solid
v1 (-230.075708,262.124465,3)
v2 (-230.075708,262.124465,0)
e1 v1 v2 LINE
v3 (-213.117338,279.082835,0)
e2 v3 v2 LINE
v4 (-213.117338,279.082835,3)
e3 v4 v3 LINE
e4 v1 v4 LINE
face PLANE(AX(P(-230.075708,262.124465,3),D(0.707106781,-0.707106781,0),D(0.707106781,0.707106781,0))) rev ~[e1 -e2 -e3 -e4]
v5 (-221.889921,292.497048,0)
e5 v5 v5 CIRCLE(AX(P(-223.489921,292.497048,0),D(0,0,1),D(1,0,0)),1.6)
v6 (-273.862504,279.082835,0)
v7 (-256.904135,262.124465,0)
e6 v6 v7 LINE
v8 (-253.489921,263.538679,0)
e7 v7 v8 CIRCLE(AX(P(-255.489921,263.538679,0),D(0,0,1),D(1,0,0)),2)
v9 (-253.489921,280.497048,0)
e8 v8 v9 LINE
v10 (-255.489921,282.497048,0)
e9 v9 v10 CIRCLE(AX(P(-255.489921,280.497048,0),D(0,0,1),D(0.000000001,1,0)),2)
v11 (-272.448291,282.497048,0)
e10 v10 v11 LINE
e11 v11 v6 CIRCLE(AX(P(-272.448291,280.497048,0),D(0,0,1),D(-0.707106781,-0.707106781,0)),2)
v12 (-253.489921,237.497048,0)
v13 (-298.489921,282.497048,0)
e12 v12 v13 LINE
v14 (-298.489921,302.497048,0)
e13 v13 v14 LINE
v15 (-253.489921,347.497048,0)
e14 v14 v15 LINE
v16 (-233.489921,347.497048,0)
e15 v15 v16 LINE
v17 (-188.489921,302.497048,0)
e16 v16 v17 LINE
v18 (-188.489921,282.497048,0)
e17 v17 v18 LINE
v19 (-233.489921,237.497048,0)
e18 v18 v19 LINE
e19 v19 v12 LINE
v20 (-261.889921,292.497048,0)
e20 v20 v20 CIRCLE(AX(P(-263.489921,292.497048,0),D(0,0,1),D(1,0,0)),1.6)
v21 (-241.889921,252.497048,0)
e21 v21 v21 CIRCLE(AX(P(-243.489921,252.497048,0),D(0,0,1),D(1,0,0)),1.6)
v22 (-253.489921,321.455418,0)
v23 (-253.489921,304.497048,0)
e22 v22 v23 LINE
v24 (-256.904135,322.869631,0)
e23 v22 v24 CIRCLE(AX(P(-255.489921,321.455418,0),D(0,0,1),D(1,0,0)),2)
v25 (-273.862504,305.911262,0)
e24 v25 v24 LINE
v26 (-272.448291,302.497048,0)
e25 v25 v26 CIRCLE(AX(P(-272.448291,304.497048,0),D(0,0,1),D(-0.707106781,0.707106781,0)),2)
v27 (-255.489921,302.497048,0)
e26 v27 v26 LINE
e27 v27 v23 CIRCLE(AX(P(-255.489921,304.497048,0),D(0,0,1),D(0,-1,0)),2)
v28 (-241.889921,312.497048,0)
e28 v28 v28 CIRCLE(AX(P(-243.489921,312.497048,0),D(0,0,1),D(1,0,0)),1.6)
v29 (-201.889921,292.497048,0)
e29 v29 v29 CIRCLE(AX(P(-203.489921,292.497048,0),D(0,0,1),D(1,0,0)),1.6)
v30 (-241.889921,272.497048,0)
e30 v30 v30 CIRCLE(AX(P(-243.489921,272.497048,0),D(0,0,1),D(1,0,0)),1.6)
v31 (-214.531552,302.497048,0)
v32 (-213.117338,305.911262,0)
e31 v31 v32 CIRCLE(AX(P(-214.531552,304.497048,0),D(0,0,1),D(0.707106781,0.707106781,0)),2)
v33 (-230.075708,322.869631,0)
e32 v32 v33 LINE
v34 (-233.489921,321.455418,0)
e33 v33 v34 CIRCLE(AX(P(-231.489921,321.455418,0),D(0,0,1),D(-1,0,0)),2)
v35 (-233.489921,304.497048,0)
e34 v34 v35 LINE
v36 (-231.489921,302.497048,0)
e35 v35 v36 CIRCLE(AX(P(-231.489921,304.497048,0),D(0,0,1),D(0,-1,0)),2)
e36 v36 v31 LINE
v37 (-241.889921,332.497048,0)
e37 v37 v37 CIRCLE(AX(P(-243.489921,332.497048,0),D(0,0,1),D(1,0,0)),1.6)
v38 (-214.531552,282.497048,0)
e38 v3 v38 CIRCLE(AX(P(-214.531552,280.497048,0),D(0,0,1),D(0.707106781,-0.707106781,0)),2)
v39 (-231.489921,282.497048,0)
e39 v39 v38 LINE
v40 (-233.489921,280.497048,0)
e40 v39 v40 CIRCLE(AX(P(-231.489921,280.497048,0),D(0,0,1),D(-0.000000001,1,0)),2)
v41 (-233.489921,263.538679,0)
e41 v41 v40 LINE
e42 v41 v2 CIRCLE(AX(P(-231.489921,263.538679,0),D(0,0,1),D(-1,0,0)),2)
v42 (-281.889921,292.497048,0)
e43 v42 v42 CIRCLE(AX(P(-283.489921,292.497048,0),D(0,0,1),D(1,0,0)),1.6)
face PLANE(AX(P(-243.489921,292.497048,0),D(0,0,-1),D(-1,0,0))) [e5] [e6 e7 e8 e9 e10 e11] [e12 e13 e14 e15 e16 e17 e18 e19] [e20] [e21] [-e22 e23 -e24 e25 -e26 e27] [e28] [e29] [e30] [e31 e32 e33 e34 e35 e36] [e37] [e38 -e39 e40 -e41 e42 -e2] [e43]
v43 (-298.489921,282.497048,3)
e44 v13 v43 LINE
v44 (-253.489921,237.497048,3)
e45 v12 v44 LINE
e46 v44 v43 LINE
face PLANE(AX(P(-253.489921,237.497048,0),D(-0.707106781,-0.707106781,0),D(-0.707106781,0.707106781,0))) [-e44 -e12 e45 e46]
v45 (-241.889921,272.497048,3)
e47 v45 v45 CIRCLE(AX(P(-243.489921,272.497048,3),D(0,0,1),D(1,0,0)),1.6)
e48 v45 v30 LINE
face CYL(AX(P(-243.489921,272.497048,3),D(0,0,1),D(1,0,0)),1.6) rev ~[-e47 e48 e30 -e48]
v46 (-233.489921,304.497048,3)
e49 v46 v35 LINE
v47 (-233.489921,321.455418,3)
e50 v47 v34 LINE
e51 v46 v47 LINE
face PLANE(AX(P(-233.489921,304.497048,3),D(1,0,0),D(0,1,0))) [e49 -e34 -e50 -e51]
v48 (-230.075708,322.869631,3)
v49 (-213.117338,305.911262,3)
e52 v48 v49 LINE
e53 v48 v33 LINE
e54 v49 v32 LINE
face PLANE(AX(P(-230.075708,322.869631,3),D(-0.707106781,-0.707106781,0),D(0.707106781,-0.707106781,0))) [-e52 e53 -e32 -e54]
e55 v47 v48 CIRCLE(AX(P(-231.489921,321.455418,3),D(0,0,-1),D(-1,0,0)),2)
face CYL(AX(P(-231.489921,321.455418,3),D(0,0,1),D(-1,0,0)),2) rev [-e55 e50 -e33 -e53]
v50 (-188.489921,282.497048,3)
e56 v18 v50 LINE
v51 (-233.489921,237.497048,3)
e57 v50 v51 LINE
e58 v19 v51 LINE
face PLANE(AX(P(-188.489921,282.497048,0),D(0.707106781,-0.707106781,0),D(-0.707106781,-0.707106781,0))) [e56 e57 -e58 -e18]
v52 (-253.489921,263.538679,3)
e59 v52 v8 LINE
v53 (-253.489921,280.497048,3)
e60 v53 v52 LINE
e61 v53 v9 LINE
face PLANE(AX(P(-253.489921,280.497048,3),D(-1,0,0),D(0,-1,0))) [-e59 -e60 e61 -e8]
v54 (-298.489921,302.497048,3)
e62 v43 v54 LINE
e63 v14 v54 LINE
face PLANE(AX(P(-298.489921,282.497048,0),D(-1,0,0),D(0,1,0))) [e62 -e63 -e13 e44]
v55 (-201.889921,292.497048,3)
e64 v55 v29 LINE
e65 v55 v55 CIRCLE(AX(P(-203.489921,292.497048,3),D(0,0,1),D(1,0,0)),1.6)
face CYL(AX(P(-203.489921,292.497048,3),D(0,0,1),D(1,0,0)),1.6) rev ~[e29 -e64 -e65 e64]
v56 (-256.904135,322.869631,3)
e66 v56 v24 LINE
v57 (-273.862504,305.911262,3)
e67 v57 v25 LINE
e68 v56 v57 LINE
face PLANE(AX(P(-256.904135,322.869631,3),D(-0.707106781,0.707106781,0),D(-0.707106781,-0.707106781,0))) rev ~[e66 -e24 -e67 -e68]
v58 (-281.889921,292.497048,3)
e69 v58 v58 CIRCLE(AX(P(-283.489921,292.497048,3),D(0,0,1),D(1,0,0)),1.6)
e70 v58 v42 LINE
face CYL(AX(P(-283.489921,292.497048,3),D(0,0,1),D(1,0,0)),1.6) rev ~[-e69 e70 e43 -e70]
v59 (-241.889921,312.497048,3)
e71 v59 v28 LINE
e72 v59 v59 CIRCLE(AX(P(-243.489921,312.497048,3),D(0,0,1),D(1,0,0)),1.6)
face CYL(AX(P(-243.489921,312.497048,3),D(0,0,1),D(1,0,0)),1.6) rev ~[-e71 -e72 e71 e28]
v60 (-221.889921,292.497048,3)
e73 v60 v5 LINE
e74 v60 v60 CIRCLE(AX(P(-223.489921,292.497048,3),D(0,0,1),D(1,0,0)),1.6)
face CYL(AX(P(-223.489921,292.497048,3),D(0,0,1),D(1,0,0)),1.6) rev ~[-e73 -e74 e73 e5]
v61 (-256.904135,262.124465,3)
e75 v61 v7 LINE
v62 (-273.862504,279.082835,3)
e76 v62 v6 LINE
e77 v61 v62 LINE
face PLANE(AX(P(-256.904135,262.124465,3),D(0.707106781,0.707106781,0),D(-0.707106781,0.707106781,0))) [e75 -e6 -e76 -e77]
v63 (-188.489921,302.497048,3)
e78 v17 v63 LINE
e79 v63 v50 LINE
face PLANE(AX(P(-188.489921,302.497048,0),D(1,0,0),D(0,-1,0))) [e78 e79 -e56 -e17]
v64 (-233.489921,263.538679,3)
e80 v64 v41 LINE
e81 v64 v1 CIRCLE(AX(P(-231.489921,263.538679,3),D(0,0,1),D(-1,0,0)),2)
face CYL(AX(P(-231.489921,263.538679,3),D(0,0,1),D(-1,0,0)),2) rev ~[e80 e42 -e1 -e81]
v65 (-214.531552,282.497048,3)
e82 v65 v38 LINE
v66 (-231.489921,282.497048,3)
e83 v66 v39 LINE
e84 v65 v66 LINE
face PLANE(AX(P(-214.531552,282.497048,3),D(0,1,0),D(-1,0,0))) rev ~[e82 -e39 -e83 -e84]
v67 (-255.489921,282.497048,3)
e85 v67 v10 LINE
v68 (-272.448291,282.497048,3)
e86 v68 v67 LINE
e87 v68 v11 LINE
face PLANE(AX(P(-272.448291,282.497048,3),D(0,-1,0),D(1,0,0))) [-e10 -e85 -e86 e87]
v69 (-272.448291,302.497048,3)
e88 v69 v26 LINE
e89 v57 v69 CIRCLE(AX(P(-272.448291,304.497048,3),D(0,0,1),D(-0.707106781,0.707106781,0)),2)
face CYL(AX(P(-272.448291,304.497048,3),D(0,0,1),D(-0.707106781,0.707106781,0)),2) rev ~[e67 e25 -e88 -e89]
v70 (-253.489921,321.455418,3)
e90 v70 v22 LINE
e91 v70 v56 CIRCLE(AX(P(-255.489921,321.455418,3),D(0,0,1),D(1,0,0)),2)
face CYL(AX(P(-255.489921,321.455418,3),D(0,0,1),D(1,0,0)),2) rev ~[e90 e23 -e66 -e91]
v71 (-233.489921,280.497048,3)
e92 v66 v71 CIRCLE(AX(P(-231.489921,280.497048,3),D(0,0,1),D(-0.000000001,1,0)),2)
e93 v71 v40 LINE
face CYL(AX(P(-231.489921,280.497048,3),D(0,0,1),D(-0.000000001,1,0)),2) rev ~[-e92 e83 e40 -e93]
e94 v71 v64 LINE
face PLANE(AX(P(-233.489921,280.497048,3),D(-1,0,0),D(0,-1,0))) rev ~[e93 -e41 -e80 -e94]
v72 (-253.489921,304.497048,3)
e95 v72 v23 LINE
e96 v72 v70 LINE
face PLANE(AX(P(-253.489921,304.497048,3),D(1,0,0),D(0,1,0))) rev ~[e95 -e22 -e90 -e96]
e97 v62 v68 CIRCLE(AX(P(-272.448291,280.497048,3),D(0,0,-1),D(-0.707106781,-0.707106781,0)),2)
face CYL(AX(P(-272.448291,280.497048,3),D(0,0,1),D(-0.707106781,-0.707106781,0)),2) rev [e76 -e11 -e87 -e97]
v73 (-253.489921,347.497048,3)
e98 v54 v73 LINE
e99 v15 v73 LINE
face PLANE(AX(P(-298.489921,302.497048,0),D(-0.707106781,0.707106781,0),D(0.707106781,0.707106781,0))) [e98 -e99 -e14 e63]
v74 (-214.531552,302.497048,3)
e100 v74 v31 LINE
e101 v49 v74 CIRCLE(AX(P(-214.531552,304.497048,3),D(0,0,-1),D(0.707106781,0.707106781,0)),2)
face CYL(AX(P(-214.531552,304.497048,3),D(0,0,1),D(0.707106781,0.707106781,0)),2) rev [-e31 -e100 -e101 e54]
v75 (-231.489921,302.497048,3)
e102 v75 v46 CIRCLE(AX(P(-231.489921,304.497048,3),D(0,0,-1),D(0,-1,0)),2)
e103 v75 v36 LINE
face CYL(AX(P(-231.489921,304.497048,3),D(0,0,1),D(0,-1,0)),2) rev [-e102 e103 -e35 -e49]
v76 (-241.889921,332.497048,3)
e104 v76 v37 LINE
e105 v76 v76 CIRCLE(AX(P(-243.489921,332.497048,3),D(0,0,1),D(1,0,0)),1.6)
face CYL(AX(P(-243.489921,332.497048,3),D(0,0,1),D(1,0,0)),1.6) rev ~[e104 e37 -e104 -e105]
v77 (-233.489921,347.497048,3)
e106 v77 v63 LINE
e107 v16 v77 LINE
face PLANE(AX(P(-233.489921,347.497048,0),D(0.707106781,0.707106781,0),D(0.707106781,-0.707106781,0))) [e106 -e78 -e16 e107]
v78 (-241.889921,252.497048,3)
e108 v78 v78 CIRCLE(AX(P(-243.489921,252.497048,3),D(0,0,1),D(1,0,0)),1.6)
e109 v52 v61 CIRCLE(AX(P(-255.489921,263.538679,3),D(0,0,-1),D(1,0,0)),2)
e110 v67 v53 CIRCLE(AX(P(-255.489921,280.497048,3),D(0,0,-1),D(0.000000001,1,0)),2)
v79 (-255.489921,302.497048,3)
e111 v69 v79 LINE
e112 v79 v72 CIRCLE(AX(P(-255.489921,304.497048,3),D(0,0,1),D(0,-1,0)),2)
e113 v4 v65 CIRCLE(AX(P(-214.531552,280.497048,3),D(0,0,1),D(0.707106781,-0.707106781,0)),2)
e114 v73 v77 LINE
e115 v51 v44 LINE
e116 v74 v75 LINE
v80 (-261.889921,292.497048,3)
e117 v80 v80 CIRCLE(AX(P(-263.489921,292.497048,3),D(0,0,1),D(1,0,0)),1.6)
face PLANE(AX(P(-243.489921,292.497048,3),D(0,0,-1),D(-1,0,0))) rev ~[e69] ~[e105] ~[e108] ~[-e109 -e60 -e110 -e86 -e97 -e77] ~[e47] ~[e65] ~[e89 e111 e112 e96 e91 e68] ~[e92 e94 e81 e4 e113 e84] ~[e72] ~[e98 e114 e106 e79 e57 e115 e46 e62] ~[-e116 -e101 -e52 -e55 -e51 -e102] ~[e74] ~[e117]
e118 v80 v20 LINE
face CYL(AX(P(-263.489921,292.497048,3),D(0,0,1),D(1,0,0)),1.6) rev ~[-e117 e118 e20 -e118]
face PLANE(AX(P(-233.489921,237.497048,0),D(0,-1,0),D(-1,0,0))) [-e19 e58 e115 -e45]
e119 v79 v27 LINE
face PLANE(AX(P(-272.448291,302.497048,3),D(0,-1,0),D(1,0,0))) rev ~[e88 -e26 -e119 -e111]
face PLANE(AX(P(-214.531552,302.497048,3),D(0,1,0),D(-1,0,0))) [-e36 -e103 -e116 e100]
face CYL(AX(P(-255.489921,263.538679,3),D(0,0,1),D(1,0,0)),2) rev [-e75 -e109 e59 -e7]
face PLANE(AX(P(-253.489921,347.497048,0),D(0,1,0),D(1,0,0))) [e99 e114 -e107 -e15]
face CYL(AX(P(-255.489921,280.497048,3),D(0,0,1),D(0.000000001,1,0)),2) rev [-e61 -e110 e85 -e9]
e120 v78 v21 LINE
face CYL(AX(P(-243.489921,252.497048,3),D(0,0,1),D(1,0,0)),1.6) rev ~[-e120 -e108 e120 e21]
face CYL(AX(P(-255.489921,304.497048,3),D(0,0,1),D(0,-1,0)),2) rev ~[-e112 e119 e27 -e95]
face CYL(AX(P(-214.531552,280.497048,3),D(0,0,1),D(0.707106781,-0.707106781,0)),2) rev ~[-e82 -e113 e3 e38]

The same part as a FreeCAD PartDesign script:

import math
import FreeCAD as App
import Part
import Sketcher
from FreeCAD import Vector


def add_polygon(sketch, points):
    """Adds a closed chain of lines whose ends are joined by coincident constraints."""
    first, n = sketch.GeometryCount, len(points)
    for a, b in zip(points, points[1:] + points[:1]):
        sketch.addGeometry(Part.LineSegment(App.Vector(*a, 0), App.Vector(*b, 0)), False)
    for i in range(n):
        sketch.addConstraint(Sketcher.Constraint("Coincident", first + i, 2, first + (i + 1) % n, 1))

doc = App.newDocument("Part")
params = doc.addObject("Spreadsheet::Sheet", "Params")
for row, (alias, value) in enumerate([
    ("sketch1_width", "20 mm"),
    ("pad1_length", "3 mm"),
    ("sketch2_diameter", "3.2 mm"),
    ("pocket1_length", "3 mm"),
    ("sketch3_radius", "2 mm"),
    ("pocket2_length", "10 mm"),
], start=1):
    params.set(f"A{row}", alias)
    params.set(f"B{row}", "=" + value)
    params.setAlias(f"B{row}", alias)

body = doc.addObject("PartDesign::Body", "Body")

# Sketch on XY plane
sketch1 = body.newObject("Sketcher::SketchObject", "Sketch")
sketch1.AttachmentSupport = (doc.getObject("XY_Plane"), [""])
sketch1.MapMode = "FlatFace"
add_polygon(sketch1, [(-233, 347), (-253, 347), (-298, 302), (-298, 282), (-253, 237), (-233, 237), (-188, 282), (-188, 302)])  # lines 0-7
sketch1.addConstraint(Sketcher.Constraint("Horizontal", 0))
sketch1.addConstraint(Sketcher.Constraint("Vertical", 2))
sketch1.addConstraint(Sketcher.Constraint("Horizontal", 4))
sketch1.addConstraint(Sketcher.Constraint("Vertical", 6))
sketch1.addConstraint(Sketcher.Constraint("Perpendicular", 1, 3))
sketch1.addConstraint(Sketcher.Constraint("Perpendicular", 3, 5))
sketch1.addConstraint(Sketcher.Constraint("Perpendicular", 5, 7))
sketch1.addConstraint(Sketcher.Constraint("Horizontal", 2, 2, 5, 2))
sketch1.addConstraint(Sketcher.Constraint("Horizontal", 1, 2, 6, 2))
sketch1.addConstraint(Sketcher.Constraint("Vertical", 0, 2, 3, 2))
sketch1.addConstraint(Sketcher.Constraint("Vertical", 4, 2, 7, 2))
sketch1.addConstraint(Sketcher.Constraint("Equal", 4, 2))
sketch1.addConstraint(Sketcher.Constraint("DistanceX", 0, 2, 0, 1, 20.0))
sketch1.addConstraint(Sketcher.Constraint("DistanceX", 1, 2, 0, 2, 45.0))
sketch1.addConstraint(Sketcher.Constraint("DistanceX", 0, 2, -1, 1, 253.489921))
sketch1.addConstraint(Sketcher.Constraint("DistanceY", -1, 1, 0, 2, 347.497048))
sketch1.setExpression("Constraints[20]", "Params.sketch1_width")
pad1 = body.newObject("PartDesign::Pad", "Pad")
pad1.Profile = sketch1
pad1.setExpression("Length", "Params.pad1_length")

# Sketch on XY plane
sketch2 = body.newObject("Sketcher::SketchObject", "Sketch001")
sketch2.AttachmentSupport = (doc.getObject("XY_Plane"), [""])
sketch2.MapMode = "FlatFace"
sketch2.AttachmentOffset = App.Placement(Vector(0, 0, 3), App.Rotation())
sketch2.addGeometry(Part.Circle(Vector(-203.5, 292.5, 0), Vector(0, 0, 1), 1.6), False)
sketch2.addGeometry(Part.Circle(Vector(-223.5, 292.5, 0), Vector(0, 0, 1), 1.6), False)
sketch2.addGeometry(Part.Circle(Vector(-243.5, 252.5, 0), Vector(0, 0, 1), 1.6), False)
sketch2.addGeometry(Part.Circle(Vector(-243.5, 272.5, 0), Vector(0, 0, 1), 1.6), False)
sketch2.addGeometry(Part.Circle(Vector(-283.5, 292.5, 0), Vector(0, 0, 1), 1.6), False)
sketch2.addGeometry(Part.Circle(Vector(-263.5, 292.5, 0), Vector(0, 0, 1), 1.6), False)
sketch2.addGeometry(Part.Circle(Vector(-243.5, 312.5, 0), Vector(0, 0, 1), 1.6), False)
sketch2.addGeometry(Part.Circle(Vector(-243.5, 332.5, 0), Vector(0, 0, 1), 1.6), False)
sketch2.addConstraint(Sketcher.Constraint("Equal", 0, 1))
sketch2.addConstraint(Sketcher.Constraint("Equal", 1, 2))
sketch2.addConstraint(Sketcher.Constraint("Equal", 2, 3))
sketch2.addConstraint(Sketcher.Constraint("Equal", 3, 4))
sketch2.addConstraint(Sketcher.Constraint("Equal", 4, 5))
sketch2.addConstraint(Sketcher.Constraint("Equal", 5, 6))
sketch2.addConstraint(Sketcher.Constraint("Equal", 6, 7))
sketch2.addConstraint(Sketcher.Constraint("Horizontal", 0, 3, 1, 3))
sketch2.addConstraint(Sketcher.Constraint("Horizontal", 1, 3, 4, 3))
sketch2.addConstraint(Sketcher.Constraint("Horizontal", 4, 3, 5, 3))
sketch2.addConstraint(Sketcher.Constraint("Vertical", 2, 3, 3, 3))
sketch2.addConstraint(Sketcher.Constraint("Vertical", 3, 3, 6, 3))
sketch2.addConstraint(Sketcher.Constraint("Vertical", 6, 3, 7, 3))
sketch2.addConstraint(Sketcher.Constraint("Diameter", 0, 3.2))
sketch2.addConstraint(Sketcher.Constraint("DistanceX", 1, 3, 0, 3, 20.0))
sketch2.addConstraint(Sketcher.Constraint("DistanceX", 2, 3, 1, 3, 20.0))
sketch2.addConstraint(Sketcher.Constraint("DistanceY", 2, 3, 1, 3, 40.0))
sketch2.addConstraint(Sketcher.Constraint("DistanceY", 2, 3, 3, 3, 20.0))
sketch2.addConstraint(Sketcher.Constraint("DistanceX", 4, 3, 3, 3, 40.0))
sketch2.addConstraint(Sketcher.Constraint("DistanceX", 4, 3, 5, 3, 20.0))
sketch2.addConstraint(Sketcher.Constraint("DistanceY", 1, 3, 6, 3, 20.0))
sketch2.addConstraint(Sketcher.Constraint("DistanceY", 6, 3, 7, 3, 20.0))
sketch2.addConstraint(Sketcher.Constraint("DistanceX", 0, 3, -1, 1, 203.489921))
sketch2.addConstraint(Sketcher.Constraint("DistanceY", -1, 1, 0, 3, 292.497048))
sketch2.setExpression("Constraints[13]", "Params.sketch2_diameter")
pocket1 = body.newObject("PartDesign::Pocket", "Pocket")
pocket1.Profile = sketch2
pocket1.setExpression("Length", "Params.pocket1_length")

# Sketch on XY plane
sketch3 = body.newObject("Sketcher::SketchObject", "Sketch002")
sketch3.AttachmentSupport = (doc.getObject("XY_Plane"), [""])
sketch3.MapMode = "FlatFace"
sketch3.AttachmentOffset = App.Placement(Vector(0, 0, 3), App.Rotation())
sketch3.addGeometry(Part.LineSegment(Vector(-256.9, 322.9, 0), Vector(-273.9, 305.9, 0)), False)
sketch3.addGeometry(Part.ArcOfCircle(Part.Circle(Vector(-272.4, 304.5, 0), Vector(0, 0, 1), 2), math.radians(135), math.radians(270)), False)
sketch3.addGeometry(Part.LineSegment(Vector(-272.4, 302.5, 0), Vector(-255.5, 302.5, 0)), False)
sketch3.addGeometry(Part.ArcOfCircle(Part.Circle(Vector(-255.5, 304.5, 0), Vector(0, 0, 1), 2), math.radians(-90), math.radians(0)), False)
sketch3.addGeometry(Part.LineSegment(Vector(-253.5, 304.5, 0), Vector(-253.5, 321.5, 0)), False)
sketch3.addGeometry(Part.ArcOfCircle(Part.Circle(Vector(-255.5, 321.5, 0), Vector(0, 0, 1), 2), math.radians(0), math.radians(135)), False)
sketch3.addGeometry(Part.LineSegment(Vector(-233.5, 321.5, 0), Vector(-233.5, 304.5, 0)), False)
sketch3.addGeometry(Part.ArcOfCircle(Part.Circle(Vector(-231.5, 304.5, 0), Vector(0, 0, 1), 2), math.radians(180), math.radians(270)), False)
sketch3.addGeometry(Part.LineSegment(Vector(-231.5, 302.5, 0), Vector(-214.5, 302.5, 0)), False)
sketch3.addGeometry(Part.ArcOfCircle(Part.Circle(Vector(-214.5, 304.5, 0), Vector(0, 0, 1), 2), math.radians(-90), math.radians(45)), False)
sketch3.addGeometry(Part.LineSegment(Vector(-213.1, 305.9, 0), Vector(-230.1, 322.9, 0)), False)
sketch3.addGeometry(Part.ArcOfCircle(Part.Circle(Vector(-231.5, 321.5, 0), Vector(0, 0, 1), 2), math.radians(45), math.radians(180)), False)
sketch3.addGeometry(Part.LineSegment(Vector(-230.1, 262.1, 0), Vector(-213.1, 279.1, 0)), False)
sketch3.addGeometry(Part.ArcOfCircle(Part.Circle(Vector(-214.5, 280.5, 0), Vector(0, 0, 1), 2), math.radians(-45), math.radians(90)), False)
sketch3.addGeometry(Part.LineSegment(Vector(-214.5, 282.5, 0), Vector(-231.5, 282.5, 0)), False)
sketch3.addGeometry(Part.ArcOfCircle(Part.Circle(Vector(-231.5, 280.5, 0), Vector(0, 0, 1), 2), math.radians(90), math.radians(180)), False)
sketch3.addGeometry(Part.LineSegment(Vector(-233.5, 280.5, 0), Vector(-233.5, 263.5, 0)), False)
sketch3.addGeometry(Part.ArcOfCircle(Part.Circle(Vector(-231.5, 263.5, 0), Vector(0, 0, 1), 2), math.radians(180), math.radians(315)), False)
sketch3.addGeometry(Part.LineSegment(Vector(-253.5, 263.5, 0), Vector(-253.5, 280.5, 0)), False)
sketch3.addGeometry(Part.ArcOfCircle(Part.Circle(Vector(-255.5, 280.5, 0), Vector(0, 0, 1), 2), math.radians(0), math.radians(90)), False)
sketch3.addGeometry(Part.LineSegment(Vector(-255.5, 282.5, 0), Vector(-272.4, 282.5, 0)), False)
sketch3.addGeometry(Part.ArcOfCircle(Part.Circle(Vector(-272.4, 280.5, 0), Vector(0, 0, 1), 2), math.radians(90), math.radians(225)), False)
sketch3.addGeometry(Part.LineSegment(Vector(-273.9, 279.1, 0), Vector(-256.9, 262.1, 0)), False)
sketch3.addGeometry(Part.ArcOfCircle(Part.Circle(Vector(-255.5, 263.5, 0), Vector(0, 0, 1), 2), math.radians(-135), math.radians(0)), False)
sketch3.addConstraint(Sketcher.Constraint("Tangent", 0, 2, 1, 1))
sketch3.addConstraint(Sketcher.Constraint("Tangent", 1, 2, 2, 1))
sketch3.addConstraint(Sketcher.Constraint("Tangent", 2, 2, 3, 1))
sketch3.addConstraint(Sketcher.Constraint("Tangent", 3, 2, 4, 1))
sketch3.addConstraint(Sketcher.Constraint("Tangent", 4, 2, 5, 1))
sketch3.addConstraint(Sketcher.Constraint("Tangent", 5, 2, 0, 1))
sketch3.addConstraint(Sketcher.Constraint("Tangent", 6, 2, 7, 1))
sketch3.addConstraint(Sketcher.Constraint("Tangent", 7, 2, 8, 1))
sketch3.addConstraint(Sketcher.Constraint("Tangent", 8, 2, 9, 1))
sketch3.addConstraint(Sketcher.Constraint("Tangent", 9, 2, 10, 1))
sketch3.addConstraint(Sketcher.Constraint("Tangent", 10, 2, 11, 1))
sketch3.addConstraint(Sketcher.Constraint("Tangent", 11, 2, 6, 1))
sketch3.addConstraint(Sketcher.Constraint("Tangent", 12, 2, 13, 1))
sketch3.addConstraint(Sketcher.Constraint("Tangent", 13, 2, 14, 1))
sketch3.addConstraint(Sketcher.Constraint("Tangent", 14, 2, 15, 1))
sketch3.addConstraint(Sketcher.Constraint("Tangent", 15, 2, 16, 1))
sketch3.addConstraint(Sketcher.Constraint("Tangent", 16, 2, 17, 1))
sketch3.addConstraint(Sketcher.Constraint("Tangent", 17, 2, 12, 1))
sketch3.addConstraint(Sketcher.Constraint("Tangent", 18, 2, 19, 1))
sketch3.addConstraint(Sketcher.Constraint("Tangent", 19, 2, 20, 1))
sketch3.addConstraint(Sketcher.Constraint("Tangent", 20, 2, 21, 1))
sketch3.addConstraint(Sketcher.Constraint("Tangent", 21, 2, 22, 1))
sketch3.addConstraint(Sketcher.Constraint("Tangent", 22, 2, 23, 1))
sketch3.addConstraint(Sketcher.Constraint("Tangent", 23, 2, 18, 1))
sketch3.addConstraint(Sketcher.Constraint("Horizontal", 2))
sketch3.addConstraint(Sketcher.Constraint("Vertical", 4))
sketch3.addConstraint(Sketcher.Constraint("Vertical", 6))
sketch3.addConstraint(Sketcher.Constraint("Horizontal", 8))
sketch3.addConstraint(Sketcher.Constraint("Horizontal", 14))
sketch3.addConstraint(Sketcher.Constraint("Vertical", 16))
sketch3.addConstraint(Sketcher.Constraint("Vertical", 18))
sketch3.addConstraint(Sketcher.Constraint("Horizontal", 20))
sketch3.addConstraint(Sketcher.Constraint("Equal", 1, 3))
sketch3.addConstraint(Sketcher.Constraint("Equal", 3, 5))
sketch3.addConstraint(Sketcher.Constraint("Equal", 5, 7))
sketch3.addConstraint(Sketcher.Constraint("Equal", 7, 9))
sketch3.addConstraint(Sketcher.Constraint("Equal", 9, 11))
sketch3.addConstraint(Sketcher.Constraint("Equal", 11, 13))
sketch3.addConstraint(Sketcher.Constraint("Equal", 13, 15))
sketch3.addConstraint(Sketcher.Constraint("Equal", 15, 17))
sketch3.addConstraint(Sketcher.Constraint("Equal", 17, 19))
sketch3.addConstraint(Sketcher.Constraint("Equal", 19, 21))
sketch3.addConstraint(Sketcher.Constraint("Equal", 21, 23))
sketch3.addConstraint(Sketcher.Constraint("Perpendicular", 0, 10))
sketch3.addConstraint(Sketcher.Constraint("Perpendicular", 10, 12))
sketch3.addConstraint(Sketcher.Constraint("Perpendicular", 12, 22))
sketch3.addConstraint(Sketcher.Constraint("Horizontal", 3, 3, 7, 3))
sketch3.addConstraint(Sketcher.Constraint("Horizontal", 5, 3, 11, 3))
sketch3.addConstraint(Sketcher.Constraint("Horizontal", 15, 3, 19, 3))
sketch3.addConstraint(Sketcher.Constraint("Horizontal", 17, 3, 23, 3))
sketch3.addConstraint(Sketcher.Constraint("Horizontal", 0, 2, 9, 2))
sketch3.addConstraint(Sketcher.Constraint("Vertical", 9, 3, 13, 3))
sketch3.addConstraint(Sketcher.Constraint("Vertical", 11, 3, 15, 3))
sketch3.addConstraint(Sketcher.Constraint("Vertical", 5, 3, 19, 3))
sketch3.addConstraint(Sketcher.Constraint("Radius", 1, 2.0))
sketch3.addConstraint(Sketcher.Constraint("DistanceX", 3, 3, 7, 3, 24.0))
sketch3.addConstraint(Sketcher.Constraint("DistanceY", 13, 3, 9, 3, 24.0))
sketch3.addConstraint(Sketcher.Constraint("DistanceX", 2, 1, 2, 2, 16.958369))
sketch3.addConstraint(Sketcher.Constraint("DistanceX", 1, 3, -1, 1, 272.448291))
sketch3.addConstraint(Sketcher.Constraint("DistanceY", -1, 1, 1, 3, 304.497048))
sketch3.setExpression("Constraints[54]", "Params.sketch3_radius")
pocket2 = body.newObject("PartDesign::Pocket", "Pocket001")
pocket2.Profile = sketch3
pocket2.setExpression("Length", "Params.pocket2_length")

doc.recompute()
